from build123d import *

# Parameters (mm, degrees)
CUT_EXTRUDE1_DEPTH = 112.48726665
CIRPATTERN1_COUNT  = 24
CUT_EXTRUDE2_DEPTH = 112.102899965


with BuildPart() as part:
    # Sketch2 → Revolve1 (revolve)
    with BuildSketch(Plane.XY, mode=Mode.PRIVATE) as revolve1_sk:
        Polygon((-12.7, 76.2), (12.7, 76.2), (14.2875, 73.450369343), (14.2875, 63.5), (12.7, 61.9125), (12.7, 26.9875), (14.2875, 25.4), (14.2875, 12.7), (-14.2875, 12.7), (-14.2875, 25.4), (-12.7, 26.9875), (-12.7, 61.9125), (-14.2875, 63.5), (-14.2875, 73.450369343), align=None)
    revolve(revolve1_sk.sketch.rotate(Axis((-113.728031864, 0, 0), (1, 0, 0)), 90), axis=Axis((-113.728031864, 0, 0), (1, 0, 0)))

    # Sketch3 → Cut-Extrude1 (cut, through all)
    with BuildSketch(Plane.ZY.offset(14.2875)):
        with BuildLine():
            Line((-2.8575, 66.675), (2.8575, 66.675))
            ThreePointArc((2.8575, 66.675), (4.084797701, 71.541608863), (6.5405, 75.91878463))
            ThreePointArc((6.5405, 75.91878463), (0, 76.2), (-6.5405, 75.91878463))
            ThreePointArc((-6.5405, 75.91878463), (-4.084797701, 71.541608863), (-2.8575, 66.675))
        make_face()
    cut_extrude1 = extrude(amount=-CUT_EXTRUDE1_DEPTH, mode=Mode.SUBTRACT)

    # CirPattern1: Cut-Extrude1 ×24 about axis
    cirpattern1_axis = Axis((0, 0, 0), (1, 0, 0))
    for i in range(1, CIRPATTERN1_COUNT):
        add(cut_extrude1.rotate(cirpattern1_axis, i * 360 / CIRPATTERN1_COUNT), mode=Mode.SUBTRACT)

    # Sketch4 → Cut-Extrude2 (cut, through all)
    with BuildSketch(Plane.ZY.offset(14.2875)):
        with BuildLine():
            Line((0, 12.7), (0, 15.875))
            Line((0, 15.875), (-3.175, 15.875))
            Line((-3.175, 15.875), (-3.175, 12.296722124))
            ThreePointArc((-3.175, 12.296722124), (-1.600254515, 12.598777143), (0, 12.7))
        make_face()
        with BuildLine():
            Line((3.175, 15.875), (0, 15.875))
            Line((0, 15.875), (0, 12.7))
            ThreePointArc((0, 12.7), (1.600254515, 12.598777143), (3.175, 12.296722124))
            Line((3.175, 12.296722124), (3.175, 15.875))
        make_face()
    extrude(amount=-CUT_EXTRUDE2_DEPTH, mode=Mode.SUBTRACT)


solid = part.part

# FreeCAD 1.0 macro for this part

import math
import FreeCAD as App
import Part
import Sketcher

V = App.Vector
Q = App.Units.Quantity


def add_polygon(sketch, points):
    """Adds a closed chain of lines whose ends are joined by coincident constraints."""
    first, n = sketch.GeometryCount, len(points)
    for a, b in zip(points, points[1:] + points[:1]):
        sketch.addGeometry(Part.LineSegment(App.Vector(*a, 0), App.Vector(*b, 0)), False)
    for i in range(n):
        sketch.addConstraint(Sketcher.Constraint("Coincident", first + i, 2, first + (i + 1) % n, 1))

doc = App.newDocument("Part")
params = doc.addObject("Spreadsheet::Sheet", "Params")
for row, (alias, value) in enumerate([
    ("sketch1_width", "1 in"),
    ("sketch1_height", "0.5 in"),
    ("sketch1_width2", "1.125 in"),
    ("revolution_angle", "360 deg"),
    ("sketch2_radius", "3 in"),
    ("sketch2_radius2", "0.75 in"),
    ("sketch2_height", "0.225 in"),
    ("sketch3_radius", "0.5 in"),
    ("sketch3_height", "0.25 in"),
], start=1):
    params.set(f"A{row}", alias)
    params.set(f"B{row}", "=" + value)
    params.setAlias(f"B{row}", alias)

body = doc.addObject("PartDesign::Body", "Body")

# Sketch on XY plane
sketch1 = doc.addObject("Sketcher::SketchObject", "Sketch")
body.addObject(sketch1)
sketch1.AttachmentSupport = (doc.XY_Plane, [""])
sketch1.MapMode = "FlatFace"
add_polygon(sketch1, [(12.7, 76.2), (-12.7, 76.2), (-14.2875, 73.450369), (-14.2875, 63.5), (-12.7, 61.9125), (-12.7, 26.9875), (-14.2875, 25.4), (-14.2875, 12.7), (14.2875, 12.7), (14.2875, 25.4), (12.7, 26.9875), (12.7, 61.9125), (14.2875, 63.5), (14.2875, 73.450369)])  # lines 0-13
sketch1.addConstraint(Sketcher.Constraint("Horizontal", 0))
sketch1.addConstraint(Sketcher.Constraint("Vertical", 2))
sketch1.addConstraint(Sketcher.Constraint("Vertical", 4))
sketch1.addConstraint(Sketcher.Constraint("Vertical", 6))
sketch1.addConstraint(Sketcher.Constraint("Horizontal", 7))
sketch1.addConstraint(Sketcher.Constraint("Vertical", 8))
sketch1.addConstraint(Sketcher.Constraint("Vertical", 10))
sketch1.addConstraint(Sketcher.Constraint("Vertical", 12))
sketch1.addConstraint(Sketcher.Constraint("Symmetric", 5, 2, 8, 2, -2))
sketch1.addConstraint(Sketcher.Constraint("Symmetric", 4, 2, 9, 2, -2))
sketch1.addConstraint(Sketcher.Constraint("Symmetric", 2, 2, 11, 2, -2))
sketch1.addConstraint(Sketcher.Constraint("Perpendicular", 3, 5))
sketch1.addConstraint(Sketcher.Constraint("Perpendicular", 5, 9))
sketch1.addConstraint(Sketcher.Constraint("Perpendicular", 9, 11))
sketch1.addConstraint(Sketcher.Constraint("Horizontal", 1, 2, 12, 2))
sketch1.addConstraint(Sketcher.Constraint("Vertical", 0, 2, 3, 2))
sketch1.addConstraint(Sketcher.Constraint("Vertical", 2, 2, 5, 2))
sketch1.addConstraint(Sketcher.Constraint("Vertical", 10, 2, 13, 2))
sketch1.addConstraint(Sketcher.Constraint("DistanceX", 0, 2, 0, 1, Q("1 in")))
sketch1.addConstraint(Sketcher.Constraint("DistanceY", 6, 2, 6, 1, Q("0.5 in")))
sketch1.addConstraint(Sketcher.Constraint("DistanceY", -1, 1, 0, 2, Q("3 in")))
sketch1.addConstraint(Sketcher.Constraint("DistanceY", -1, 1, 5, 2, Q("1 in")))
sketch1.addConstraint(Sketcher.Constraint("Angle", 1, Q("-120 deg")))
sketch1.addConstraint(Sketcher.Constraint("DistanceY", 6, 2, 2, 2, Q("2 in")))
sketch1.addConstraint(Sketcher.Constraint("DistanceX", 7, 1, 7, 2, Q("1.125 in")))
sketch1.setExpression("Constraints[32]", "Params.sketch1_width")
sketch1.setExpression("Constraints[33]", "Params.sketch1_height")
sketch1.setExpression("Constraints[38]", "Params.sketch1_width2")
revolution = doc.addObject("PartDesign::Revolution", "Revolution")
body.addObject(revolution)
revolution.Profile = sketch1
revolution.ReferenceAxis = (sketch1, ["H_Axis"])
revolution.setExpression("Angle", "Params.revolution_angle")

# Sketch on YZ plane
sketch2 = doc.addObject("Sketcher::SketchObject", "Sketch001")
body.addObject(sketch2)
sketch2.AttachmentSupport = (doc.YZ_Plane, [""])
sketch2.MapMode = "FlatFace"
sketch2.AttachmentOffset = App.Placement(V(0, 0, -0.5625 * 25.4), App.Rotation())
sketch2.addGeometry(Part.LineSegment(V(66.675, -2.8575, 0), V(66.675, 2.8575, 0)), False)
sketch2.addGeometry(Part.ArcOfCircle(Part.Circle(V(64.490577, 21.781844, 0), V(0, 0, 1), 19.05), math.radians(-83.415531), math.radians(-53.13684)), False)
sketch2.addGeometry(Part.ArcOfCircle(Part.Circle(V(0, 0, 0), V(0, 0, 1), 76.2), math.radians(-4.923946), math.radians(4.923946)), False)
sketch2.addGeometry(Part.ArcOfCircle(Part.Circle(V(64.490577, -21.781844, 0), V(0, 0, 1), 19.05), math.radians(53.13684), math.radians(83.415531)), False)
sketch2.addConstraint(Sketcher.Constraint("Coincident", 0, 2, 1, 1))
sketch2.addConstraint(Sketcher.Constraint("Coincident", 1, 2, 2, 2))
sketch2.addConstraint(Sketcher.Constraint("Coincident", 2, 1, 3, 1))
sketch2.addConstraint(Sketcher.Constraint("Coincident", 3, 2, 0, 1))
sketch2.addConstraint(Sketcher.Constraint("Vertical", 0))
sketch2.addConstraint(Sketcher.Constraint("Coincident", 2, 3, -1, 1))
sketch2.addConstraint(Sketcher.Constraint("Equal", 1, 3))
sketch2.addConstraint(Sketcher.Constraint("Symmetric", 1, 3, 3, 3, -1))
sketch2.addConstraint(Sketcher.Constraint("Radius", 2, Q("3 in")))
sketch2.addConstraint(Sketcher.Constraint("Radius", 1, Q("0.75 in")))
sketch2.addConstraint(Sketcher.Constraint("DistanceY", 0, 1, 0, 2, Q("0.225 in")))
sketch2.addConstraint(Sketcher.Constraint("DistanceY", 2, 1, 0, 2, Q("0.37 in")))
sketch2.addConstraint(Sketcher.Constraint("DistanceX", -1, 1, 0, 2, Q("2.625 in")))
sketch2.setExpression("Constraints[8]", "Params.sketch2_radius")
sketch2.setExpression("Constraints[9]", "Params.sketch2_radius2")
sketch2.setExpression("Constraints[10]", "Params.sketch2_height")
pocket1 = doc.addObject("PartDesign::Pocket", "Pocket")
body.addObject(pocket1)
pocket1.Profile = sketch2
pocket1.Type = "ThroughAll"
pocket1.Reversed = True
doc.recompute()

polarpattern = doc.addObject("PartDesign::PolarPattern", "PolarPattern")
body.addObject(polarpattern)
polarpattern.Originals = [pocket1]
polarpattern.Axis = (doc.X_Axis, [""])
polarpattern.Angle = 360
polarpattern.Occurrences = 24
body.Tip = polarpattern

# Sketch on YZ plane
sketch3 = doc.addObject("Sketcher::SketchObject", "Sketch002")
body.addObject(sketch3)
sketch3.AttachmentSupport = (doc.YZ_Plane, [""])
sketch3.MapMode = "FlatFace"
sketch3.AttachmentOffset = App.Placement(V(0, 0, -0.5625 * 25.4), App.Rotation())
sketch3.addGeometry(Part.LineSegment(V(15.875, -3.175, 0), V(12.296722, -3.175, 0)), False)
sketch3.addGeometry(Part.ArcOfCircle(Part.Circle(V(0, 0, 0), V(0, 0, 1), 12.7), math.radians(-14.477512), math.radians(0)), False)
sketch3.addGeometry(Part.ArcOfCircle(Part.Circle(V(0, 0, 0), V(0, 0, 1), 12.7), math.radians(0), math.radians(14.477512)), False)
sketch3.addGeometry(Part.LineSegment(V(12.296722, 3.175, 0), V(15.875, 3.175, 0)), False)
sketch3.addGeometry(Part.LineSegment(V(15.875, 3.175, 0), V(15.875, -3.175, 0)), False)
sketch3.addConstraint(Sketcher.Constraint("Coincident", 0, 2, 1, 1))
sketch3.addConstraint(Sketcher.Constraint("Tangent", 1, 2, 2, 1))
sketch3.addConstraint(Sketcher.Constraint("Coincident", 2, 2, 3, 1))
sketch3.addConstraint(Sketcher.Constraint("Coincident", 3, 2, 4, 1))
sketch3.addConstraint(Sketcher.Constraint("Coincident", 4, 2, 0, 1))
sketch3.addConstraint(Sketcher.Constraint("Horizontal", 0))
sketch3.addConstraint(Sketcher.Constraint("Horizontal", 3))
sketch3.addConstraint(Sketcher.Constraint("Vertical", 4))
sketch3.addConstraint(Sketcher.Constraint("Coincident", 1, 3, -1, 1))
sketch3.addConstraint(Sketcher.Constraint("Equal", 1, 2))
sketch3.addConstraint(Sketcher.Constraint("PointOnObject", 1, 2, -1))
sketch3.addConstraint(Sketcher.Constraint("Vertical", 0, 2, 2, 2))
sketch3.addConstraint(Sketcher.Constraint("Radius", 1, Q("0.5 in")))
sketch3.addConstraint(Sketcher.Constraint("DistanceY", 4, 2, 4, 1, Q("0.25 in")))
sketch3.addConstraint(Sketcher.Constraint("DistanceX", -1, 1, 3, 2, Q("0.625 in")))
sketch3.setExpression("Constraints[12]", "Params.sketch3_radius")
sketch3.setExpression("Constraints[13]", "Params.sketch3_height")
pocket2 = doc.addObject("PartDesign::Pocket", "Pocket001")
body.addObject(pocket2)
pocket2.Profile = sketch3
pocket2.Type = "ThroughAll"
pocket2.Reversed = True

doc.recompute()
